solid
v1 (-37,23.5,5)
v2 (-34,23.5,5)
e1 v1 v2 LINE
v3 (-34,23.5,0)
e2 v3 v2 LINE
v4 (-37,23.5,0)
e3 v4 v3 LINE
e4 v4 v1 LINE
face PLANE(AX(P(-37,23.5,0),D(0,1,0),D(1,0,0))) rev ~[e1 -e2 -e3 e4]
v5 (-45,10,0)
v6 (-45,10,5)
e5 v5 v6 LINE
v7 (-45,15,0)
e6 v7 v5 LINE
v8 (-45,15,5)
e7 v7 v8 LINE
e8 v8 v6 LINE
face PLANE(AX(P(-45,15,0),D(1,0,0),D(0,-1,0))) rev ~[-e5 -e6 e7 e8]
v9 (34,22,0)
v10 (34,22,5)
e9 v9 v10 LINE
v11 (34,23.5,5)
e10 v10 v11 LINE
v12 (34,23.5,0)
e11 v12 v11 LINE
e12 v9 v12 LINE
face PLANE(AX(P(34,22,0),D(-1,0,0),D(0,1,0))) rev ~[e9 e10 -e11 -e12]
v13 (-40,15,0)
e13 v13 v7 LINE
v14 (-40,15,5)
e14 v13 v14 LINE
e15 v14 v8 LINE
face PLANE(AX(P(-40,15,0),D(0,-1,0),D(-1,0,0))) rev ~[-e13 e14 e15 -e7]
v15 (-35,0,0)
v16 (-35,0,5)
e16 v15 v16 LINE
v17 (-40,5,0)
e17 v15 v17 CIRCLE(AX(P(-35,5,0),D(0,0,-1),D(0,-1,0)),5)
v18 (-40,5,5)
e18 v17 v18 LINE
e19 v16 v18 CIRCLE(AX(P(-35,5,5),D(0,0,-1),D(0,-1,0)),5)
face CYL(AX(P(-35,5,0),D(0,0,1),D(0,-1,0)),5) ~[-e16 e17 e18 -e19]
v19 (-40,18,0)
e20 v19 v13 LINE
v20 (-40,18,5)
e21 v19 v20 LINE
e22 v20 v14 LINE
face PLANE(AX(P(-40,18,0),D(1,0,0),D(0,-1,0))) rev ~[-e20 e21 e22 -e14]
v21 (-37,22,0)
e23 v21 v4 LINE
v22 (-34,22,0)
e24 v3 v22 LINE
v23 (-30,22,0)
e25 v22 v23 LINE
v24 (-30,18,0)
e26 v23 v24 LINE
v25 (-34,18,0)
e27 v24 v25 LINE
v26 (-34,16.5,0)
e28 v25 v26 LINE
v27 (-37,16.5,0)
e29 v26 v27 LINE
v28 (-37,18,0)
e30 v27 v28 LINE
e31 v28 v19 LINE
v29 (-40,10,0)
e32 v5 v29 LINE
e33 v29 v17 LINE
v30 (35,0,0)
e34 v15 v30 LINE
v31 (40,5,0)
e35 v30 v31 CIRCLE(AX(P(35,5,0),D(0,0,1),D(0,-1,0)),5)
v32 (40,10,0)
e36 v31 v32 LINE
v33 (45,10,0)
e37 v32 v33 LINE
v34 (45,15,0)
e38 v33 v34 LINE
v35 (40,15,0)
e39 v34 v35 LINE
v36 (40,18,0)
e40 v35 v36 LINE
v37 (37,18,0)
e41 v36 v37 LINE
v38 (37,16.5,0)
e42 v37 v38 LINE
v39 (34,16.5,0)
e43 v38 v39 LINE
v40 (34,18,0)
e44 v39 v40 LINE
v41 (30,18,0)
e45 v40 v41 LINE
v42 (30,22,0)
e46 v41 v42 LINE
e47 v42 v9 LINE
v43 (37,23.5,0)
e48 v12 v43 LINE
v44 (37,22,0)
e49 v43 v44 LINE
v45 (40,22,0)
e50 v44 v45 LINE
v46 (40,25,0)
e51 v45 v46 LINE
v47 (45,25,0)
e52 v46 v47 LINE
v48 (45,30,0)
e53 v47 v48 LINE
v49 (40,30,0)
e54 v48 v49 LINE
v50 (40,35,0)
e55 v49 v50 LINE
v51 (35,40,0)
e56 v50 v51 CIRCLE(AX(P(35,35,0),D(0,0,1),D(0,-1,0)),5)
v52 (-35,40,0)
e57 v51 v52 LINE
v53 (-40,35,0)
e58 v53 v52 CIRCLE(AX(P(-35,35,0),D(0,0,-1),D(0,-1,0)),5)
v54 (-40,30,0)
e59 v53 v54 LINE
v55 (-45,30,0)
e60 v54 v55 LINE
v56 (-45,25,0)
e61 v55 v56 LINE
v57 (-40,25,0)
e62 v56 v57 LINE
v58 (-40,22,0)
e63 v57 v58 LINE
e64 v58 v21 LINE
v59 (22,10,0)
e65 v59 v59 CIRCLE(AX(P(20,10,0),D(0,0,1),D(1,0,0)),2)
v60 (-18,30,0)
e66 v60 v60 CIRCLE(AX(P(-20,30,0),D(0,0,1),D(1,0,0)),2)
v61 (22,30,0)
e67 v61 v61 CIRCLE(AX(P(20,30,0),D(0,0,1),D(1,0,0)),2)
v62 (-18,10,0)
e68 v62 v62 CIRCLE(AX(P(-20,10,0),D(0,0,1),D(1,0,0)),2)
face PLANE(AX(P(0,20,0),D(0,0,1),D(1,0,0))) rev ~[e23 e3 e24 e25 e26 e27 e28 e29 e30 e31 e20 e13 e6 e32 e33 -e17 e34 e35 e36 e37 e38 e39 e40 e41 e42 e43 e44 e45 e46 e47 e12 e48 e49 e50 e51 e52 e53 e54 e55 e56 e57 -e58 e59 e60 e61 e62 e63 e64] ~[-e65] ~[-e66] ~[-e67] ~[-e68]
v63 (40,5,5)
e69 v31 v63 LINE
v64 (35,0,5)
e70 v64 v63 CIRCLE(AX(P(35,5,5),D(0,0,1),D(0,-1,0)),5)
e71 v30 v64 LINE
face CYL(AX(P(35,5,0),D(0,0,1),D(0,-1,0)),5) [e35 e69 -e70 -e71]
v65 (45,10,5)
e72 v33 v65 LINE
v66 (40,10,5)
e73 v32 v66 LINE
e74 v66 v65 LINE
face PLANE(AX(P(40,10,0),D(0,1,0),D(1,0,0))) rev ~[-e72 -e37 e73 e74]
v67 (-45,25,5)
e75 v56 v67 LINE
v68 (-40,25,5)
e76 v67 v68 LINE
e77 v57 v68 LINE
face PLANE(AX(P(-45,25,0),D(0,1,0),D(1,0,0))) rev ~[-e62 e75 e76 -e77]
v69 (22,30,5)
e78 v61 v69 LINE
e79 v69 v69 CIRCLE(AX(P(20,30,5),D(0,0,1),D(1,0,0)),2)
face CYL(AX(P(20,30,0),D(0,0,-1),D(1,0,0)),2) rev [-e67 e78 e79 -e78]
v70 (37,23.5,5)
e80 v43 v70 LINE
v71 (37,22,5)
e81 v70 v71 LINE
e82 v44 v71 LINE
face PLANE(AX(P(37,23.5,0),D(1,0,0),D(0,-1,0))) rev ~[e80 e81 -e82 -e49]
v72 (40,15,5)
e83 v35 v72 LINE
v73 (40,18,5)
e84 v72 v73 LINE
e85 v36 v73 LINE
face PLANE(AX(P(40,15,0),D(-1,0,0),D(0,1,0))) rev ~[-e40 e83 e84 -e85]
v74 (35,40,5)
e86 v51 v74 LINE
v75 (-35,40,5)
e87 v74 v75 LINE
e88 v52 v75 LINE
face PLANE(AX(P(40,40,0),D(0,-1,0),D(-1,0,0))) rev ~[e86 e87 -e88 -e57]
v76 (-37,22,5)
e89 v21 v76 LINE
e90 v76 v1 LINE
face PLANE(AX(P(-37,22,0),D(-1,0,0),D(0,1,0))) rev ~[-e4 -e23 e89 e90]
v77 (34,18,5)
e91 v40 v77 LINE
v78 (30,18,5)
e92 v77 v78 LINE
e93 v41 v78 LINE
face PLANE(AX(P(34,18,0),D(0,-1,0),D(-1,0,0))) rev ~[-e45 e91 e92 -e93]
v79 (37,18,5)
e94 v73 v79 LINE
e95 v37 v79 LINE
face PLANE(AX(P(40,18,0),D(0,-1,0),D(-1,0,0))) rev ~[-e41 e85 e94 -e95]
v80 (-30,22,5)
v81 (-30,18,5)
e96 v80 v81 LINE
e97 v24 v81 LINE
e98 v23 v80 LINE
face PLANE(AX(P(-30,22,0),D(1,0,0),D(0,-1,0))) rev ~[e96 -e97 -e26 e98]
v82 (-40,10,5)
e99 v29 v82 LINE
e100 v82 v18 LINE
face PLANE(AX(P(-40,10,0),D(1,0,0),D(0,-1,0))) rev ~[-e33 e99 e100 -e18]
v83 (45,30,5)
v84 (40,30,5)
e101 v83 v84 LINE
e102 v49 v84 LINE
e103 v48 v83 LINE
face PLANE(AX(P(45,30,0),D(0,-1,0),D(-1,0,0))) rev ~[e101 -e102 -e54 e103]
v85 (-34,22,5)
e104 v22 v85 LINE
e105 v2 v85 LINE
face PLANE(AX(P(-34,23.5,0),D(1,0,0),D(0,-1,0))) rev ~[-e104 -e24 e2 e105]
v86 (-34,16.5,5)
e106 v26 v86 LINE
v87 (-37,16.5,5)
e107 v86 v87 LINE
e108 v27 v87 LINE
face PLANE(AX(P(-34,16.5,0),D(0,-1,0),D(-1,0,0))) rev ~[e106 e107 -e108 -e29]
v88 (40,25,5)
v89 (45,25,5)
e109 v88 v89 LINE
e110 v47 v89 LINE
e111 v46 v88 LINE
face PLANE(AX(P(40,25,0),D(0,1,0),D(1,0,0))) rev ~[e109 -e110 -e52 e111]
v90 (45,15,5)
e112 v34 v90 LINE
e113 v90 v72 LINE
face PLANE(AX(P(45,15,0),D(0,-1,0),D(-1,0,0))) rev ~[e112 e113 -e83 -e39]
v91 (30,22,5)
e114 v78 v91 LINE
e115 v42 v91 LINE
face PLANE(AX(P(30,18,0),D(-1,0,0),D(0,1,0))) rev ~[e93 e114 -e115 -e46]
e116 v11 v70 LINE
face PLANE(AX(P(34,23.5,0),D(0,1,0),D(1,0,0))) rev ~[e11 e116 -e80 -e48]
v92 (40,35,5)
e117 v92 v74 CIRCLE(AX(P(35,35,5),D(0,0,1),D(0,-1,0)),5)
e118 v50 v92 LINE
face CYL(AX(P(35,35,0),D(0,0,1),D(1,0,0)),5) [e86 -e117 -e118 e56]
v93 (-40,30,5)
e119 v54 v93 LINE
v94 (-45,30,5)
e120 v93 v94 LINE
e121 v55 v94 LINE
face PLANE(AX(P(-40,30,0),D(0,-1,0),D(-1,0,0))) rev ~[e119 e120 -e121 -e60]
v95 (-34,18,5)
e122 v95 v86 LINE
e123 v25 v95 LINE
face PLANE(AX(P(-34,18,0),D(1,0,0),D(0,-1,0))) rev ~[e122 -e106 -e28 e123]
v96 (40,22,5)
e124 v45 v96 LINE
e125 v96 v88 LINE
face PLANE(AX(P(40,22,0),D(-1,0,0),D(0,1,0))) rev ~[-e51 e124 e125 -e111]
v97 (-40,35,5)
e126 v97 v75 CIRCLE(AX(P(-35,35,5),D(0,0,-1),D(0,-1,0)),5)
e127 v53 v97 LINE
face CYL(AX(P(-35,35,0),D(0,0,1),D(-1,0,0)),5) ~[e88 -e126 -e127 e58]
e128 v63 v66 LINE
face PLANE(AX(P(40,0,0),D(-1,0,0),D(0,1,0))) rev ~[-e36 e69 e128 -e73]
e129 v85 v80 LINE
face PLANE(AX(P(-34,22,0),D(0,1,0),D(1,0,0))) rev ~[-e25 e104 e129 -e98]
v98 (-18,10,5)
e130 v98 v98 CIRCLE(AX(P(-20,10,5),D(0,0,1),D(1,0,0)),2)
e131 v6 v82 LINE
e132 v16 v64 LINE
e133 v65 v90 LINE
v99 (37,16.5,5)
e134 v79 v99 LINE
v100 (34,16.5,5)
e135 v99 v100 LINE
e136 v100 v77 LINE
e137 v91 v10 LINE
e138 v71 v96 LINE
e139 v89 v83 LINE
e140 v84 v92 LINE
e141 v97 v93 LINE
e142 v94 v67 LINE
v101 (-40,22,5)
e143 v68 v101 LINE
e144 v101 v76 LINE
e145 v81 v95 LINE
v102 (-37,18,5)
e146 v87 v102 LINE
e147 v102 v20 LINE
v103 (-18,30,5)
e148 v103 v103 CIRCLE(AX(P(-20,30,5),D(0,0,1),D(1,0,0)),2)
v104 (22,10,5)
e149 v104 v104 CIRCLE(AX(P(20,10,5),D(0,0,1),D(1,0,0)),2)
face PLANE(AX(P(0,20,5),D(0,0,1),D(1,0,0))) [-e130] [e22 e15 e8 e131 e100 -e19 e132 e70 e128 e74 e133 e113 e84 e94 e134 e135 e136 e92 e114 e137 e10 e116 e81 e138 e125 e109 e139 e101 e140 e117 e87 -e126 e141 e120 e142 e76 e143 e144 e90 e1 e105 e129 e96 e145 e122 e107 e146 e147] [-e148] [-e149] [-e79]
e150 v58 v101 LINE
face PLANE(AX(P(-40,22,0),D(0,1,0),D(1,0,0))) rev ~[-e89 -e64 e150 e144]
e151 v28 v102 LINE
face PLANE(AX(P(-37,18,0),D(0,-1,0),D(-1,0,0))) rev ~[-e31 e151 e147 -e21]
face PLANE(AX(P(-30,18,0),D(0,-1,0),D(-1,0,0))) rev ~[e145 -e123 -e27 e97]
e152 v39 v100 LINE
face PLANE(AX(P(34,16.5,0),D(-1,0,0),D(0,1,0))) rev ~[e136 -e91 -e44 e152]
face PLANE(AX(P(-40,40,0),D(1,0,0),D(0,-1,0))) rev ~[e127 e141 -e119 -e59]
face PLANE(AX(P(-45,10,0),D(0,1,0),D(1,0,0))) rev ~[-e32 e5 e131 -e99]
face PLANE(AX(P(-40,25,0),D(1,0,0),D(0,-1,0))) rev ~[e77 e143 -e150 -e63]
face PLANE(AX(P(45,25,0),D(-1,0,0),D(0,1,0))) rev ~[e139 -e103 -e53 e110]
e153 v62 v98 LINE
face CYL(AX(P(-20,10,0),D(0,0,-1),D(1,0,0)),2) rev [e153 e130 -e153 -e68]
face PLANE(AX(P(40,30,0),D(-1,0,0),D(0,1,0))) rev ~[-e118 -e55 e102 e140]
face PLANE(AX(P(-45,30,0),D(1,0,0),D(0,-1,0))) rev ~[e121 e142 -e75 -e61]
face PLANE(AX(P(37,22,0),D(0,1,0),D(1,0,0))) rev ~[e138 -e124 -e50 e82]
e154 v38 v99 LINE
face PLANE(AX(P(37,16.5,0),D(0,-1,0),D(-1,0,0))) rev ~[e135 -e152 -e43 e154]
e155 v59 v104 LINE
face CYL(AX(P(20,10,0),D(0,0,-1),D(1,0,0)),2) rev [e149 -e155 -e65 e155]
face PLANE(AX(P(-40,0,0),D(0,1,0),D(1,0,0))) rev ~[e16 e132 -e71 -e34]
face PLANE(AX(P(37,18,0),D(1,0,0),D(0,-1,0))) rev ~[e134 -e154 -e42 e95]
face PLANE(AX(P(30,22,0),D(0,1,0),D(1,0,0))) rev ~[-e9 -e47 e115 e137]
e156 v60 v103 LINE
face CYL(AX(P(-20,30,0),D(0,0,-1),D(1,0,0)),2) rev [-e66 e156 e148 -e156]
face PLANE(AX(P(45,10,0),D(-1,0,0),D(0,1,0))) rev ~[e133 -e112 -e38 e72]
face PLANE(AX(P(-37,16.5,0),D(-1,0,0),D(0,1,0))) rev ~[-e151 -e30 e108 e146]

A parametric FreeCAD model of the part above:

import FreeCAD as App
import Part
import Sketcher
from FreeCAD import Vector


def edges_at(feature, points):
    """Names of the edges that pass closest to the given points."""
    edges = feature.Shape.Edges
    near = lambda p: min(range(len(edges)), key=lambda i: edges[i].distToShape(Part.Vertex(*p))[0])
    return sorted({f"Edge{near(p) + 1}" for p in points})


def add_polygon(sketch, points):
    """Adds a closed chain of lines whose ends are joined by coincident constraints."""
    first, n = sketch.GeometryCount, len(points)
    for a, b in zip(points, points[1:] + points[:1]):
        sketch.addGeometry(Part.LineSegment(App.Vector(*a, 0), App.Vector(*b, 0)), False)
    for i in range(n):
        sketch.addConstraint(Sketcher.Constraint("Coincident", first + i, 2, first + (i + 1) % n, 1))

doc = App.newDocument("Part")
body = doc.addObject("PartDesign::Body", "Body")

# Sketch on XY plane
sketch1 = body.newObject("Sketcher::SketchObject", "Sketch")
sketch1.AttachmentSupport = (doc.getObject("XY_Plane"), [""])
sketch1.MapMode = "FlatFace"
add_polygon(sketch1, [(-40, 0), (40, 0), (40, 10), (45, 10), (45, 15), (40, 15), (40, 18), (37, 18), (37, 16.5), (34, 16.5), (34, 18), (30, 18), (30, 22), (34, 22), (34, 23.5), (37, 23.5), (37, 22), (40, 22), (40, 25), (45, 25), (45, 30), (40, 30), (40, 40), (-40, 40), (-40, 30), (-45, 30), (-45, 25), (-40, 25), (-40, 22), (-37, 22), (-37, 23.5), (-34, 23.5), (-34, 22), (-30, 22), (-30, 18), (-34, 18), (-34, 16.5), (-37, 16.5), (-37, 18), (-40, 18), (-40, 15), (-45, 15), (-45, 10), (-40, 10)])  # lines 0-43
sketch1.addGeometry(Part.Circle(Vector(-20, 10, 0), Vector(0, 0, 1), 2), False)  # 44
sketch1.addGeometry(Part.Circle(Vector(20, 10, 0), Vector(0, 0, 1), 2), False)  # 45
sketch1.addGeometry(Part.Circle(Vector(-20, 30, 0), Vector(0, 0, 1), 2), False)  # 46
sketch1.addGeometry(Part.Circle(Vector(20, 30, 0), Vector(0, 0, 1), 2), False)  # 47
sketch1.addConstraint([
    Sketcher.Constraint("Horizontal", 0),
    Sketcher.Constraint("Vertical", 1),
    Sketcher.Constraint("Horizontal", 2),
    Sketcher.Constraint("Vertical", 3),
    Sketcher.Constraint("Horizontal", 4),
    Sketcher.Constraint("Vertical", 5),
    Sketcher.Constraint("Horizontal", 6),
    Sketcher.Constraint("Vertical", 7),
    Sketcher.Constraint("Horizontal", 8),
    Sketcher.Constraint("Vertical", 9),
    Sketcher.Constraint("Horizontal", 10),
    Sketcher.Constraint("Vertical", 11),
    Sketcher.Constraint("Horizontal", 12),
    Sketcher.Constraint("Vertical", 13),
    Sketcher.Constraint("Horizontal", 14),
    Sketcher.Constraint("Vertical", 15),
    Sketcher.Constraint("Horizontal", 16),
    Sketcher.Constraint("Vertical", 17),
    Sketcher.Constraint("Horizontal", 18),
    Sketcher.Constraint("Vertical", 19),
    Sketcher.Constraint("Horizontal", 20),
    Sketcher.Constraint("Vertical", 21),
    Sketcher.Constraint("Horizontal", 22),
    Sketcher.Constraint("Vertical", 23),
    Sketcher.Constraint("Horizontal", 24),
    Sketcher.Constraint("Vertical", 25),
    Sketcher.Constraint("Horizontal", 26),
    Sketcher.Constraint("Vertical", 27),
    Sketcher.Constraint("Horizontal", 28),
    Sketcher.Constraint("Vertical", 29),
    Sketcher.Constraint("Horizontal", 30),
    Sketcher.Constraint("Vertical", 31),
    Sketcher.Constraint("Horizontal", 32),
    Sketcher.Constraint("Vertical", 33),
    Sketcher.Constraint("Horizontal", 34),
    Sketcher.Constraint("Vertical", 35),
    Sketcher.Constraint("Horizontal", 36),
    Sketcher.Constraint("Vertical", 37),
    Sketcher.Constraint("Horizontal", 38),
    Sketcher.Constraint("Vertical", 39),
    Sketcher.Constraint("Horizontal", 40),
    Sketcher.Constraint("Vertical", 41),
    Sketcher.Constraint("Horizontal", 42),
    Sketcher.Constraint("Vertical", 43),
    Sketcher.Constraint("Equal", 44, 45),
    Sketcher.Constraint("Equal", 45, 46),
    Sketcher.Constraint("Equal", 46, 47),
    Sketcher.Constraint("Symmetric", 0, 2, 43, 2, -1, 1),
    Sketcher.Constraint("Symmetric", 44, 3, 45, 3, -2),
    Sketcher.Constraint("Symmetric", 46, 3, 47, 3, -2),
    Sketcher.Constraint("Symmetric", 20, 2, 23, 2, -2),
    Sketcher.Constraint("Symmetric", 18, 2, 25, 2, -2),
    Sketcher.Constraint("Symmetric", 16, 2, 27, 2, -2),
    Sketcher.Constraint("Symmetric", 14, 2, 29, 2, -2),
    Sketcher.Constraint("Symmetric", 12, 2, 31, 2, -2),
    Sketcher.Constraint("Symmetric", 10, 2, 33, 2, -2),
    Sketcher.Constraint("Symmetric", 8, 2, 35, 2, -2),
    Sketcher.Constraint("Symmetric", 6, 2, 37, 2, -2),
    Sketcher.Constraint("Symmetric", 4, 2, 39, 2, -2),
    Sketcher.Constraint("Symmetric", 2, 2, 41, 2, -2),
    Sketcher.Constraint("Horizontal", 45, 3, 1, 2),
    Sketcher.Constraint("Horizontal", 6, 2, 9, 2),
    Sketcher.Constraint("Horizontal", 12, 2, 15, 2),
    Sketcher.Constraint("Horizontal", 47, 3, 19, 2),
    Sketcher.Constraint("Vertical", 44, 3, 46, 3),
    Sketcher.Constraint("Vertical", 1, 2, 4, 2),
    Sketcher.Constraint("Vertical", 9, 2, 12, 2),
    Sketcher.Constraint("Vertical", 7, 2, 14, 2),
    Sketcher.Constraint("Vertical", 5, 2, 16, 2),
    Sketcher.Constraint("Vertical", 3, 2, 18, 2),
    Sketcher.Constraint("Vertical", 17, 2, 20, 2),
    Sketcher.Constraint("Equal", 6, 8),
    Sketcher.Constraint("Equal", 42, 3),
    Sketcher.Constraint("Equal", 38, 5),
    Sketcher.Constraint("Equal", 34, 11),
    Sketcher.Constraint("Equal", 9, 13),
    Sketcher.Constraint("Equal", 5, 17),
    Sketcher.Constraint("Equal", 3, 19),
    Sketcher.Constraint("Equal", 1, 21),
    Sketcher.Constraint("Diameter", 44, 4.0),
    Sketcher.Constraint("DistanceX", 0, 1, 0, 2, 80.0),
    Sketcher.Constraint("DistanceX", 2, 1, 2, 2, 5.0),
    Sketcher.Constraint("DistanceX", 6, 2, 6, 1, 3.0),
    Sketcher.Constraint("DistanceX", 10, 2, 10, 1, 4.0),
    Sketcher.Constraint("DistanceY", 1, 1, 1, 2, 10.0),
    Sketcher.Constraint("DistanceY", 7, 2, 7, 1, 1.5),
    Sketcher.Constraint("DistanceX", 44, 3, -1, 1, 20.0),
])
pad1 = body.newObject("PartDesign::Pad", "Pad")
pad1.Profile = sketch1
pad1.Length = 5
doc.recompute()

fillet = body.newObject("PartDesign::Fillet", "Fillet")
fillet.Base = (pad1, edges_at(pad1, [
    (40, 0, 2.5),
    (-40, 0, 2.5),
    (-40, 40, 2.5),
    (40, 40, 2.5),
]))
fillet.Radius = 5

doc.recompute()
